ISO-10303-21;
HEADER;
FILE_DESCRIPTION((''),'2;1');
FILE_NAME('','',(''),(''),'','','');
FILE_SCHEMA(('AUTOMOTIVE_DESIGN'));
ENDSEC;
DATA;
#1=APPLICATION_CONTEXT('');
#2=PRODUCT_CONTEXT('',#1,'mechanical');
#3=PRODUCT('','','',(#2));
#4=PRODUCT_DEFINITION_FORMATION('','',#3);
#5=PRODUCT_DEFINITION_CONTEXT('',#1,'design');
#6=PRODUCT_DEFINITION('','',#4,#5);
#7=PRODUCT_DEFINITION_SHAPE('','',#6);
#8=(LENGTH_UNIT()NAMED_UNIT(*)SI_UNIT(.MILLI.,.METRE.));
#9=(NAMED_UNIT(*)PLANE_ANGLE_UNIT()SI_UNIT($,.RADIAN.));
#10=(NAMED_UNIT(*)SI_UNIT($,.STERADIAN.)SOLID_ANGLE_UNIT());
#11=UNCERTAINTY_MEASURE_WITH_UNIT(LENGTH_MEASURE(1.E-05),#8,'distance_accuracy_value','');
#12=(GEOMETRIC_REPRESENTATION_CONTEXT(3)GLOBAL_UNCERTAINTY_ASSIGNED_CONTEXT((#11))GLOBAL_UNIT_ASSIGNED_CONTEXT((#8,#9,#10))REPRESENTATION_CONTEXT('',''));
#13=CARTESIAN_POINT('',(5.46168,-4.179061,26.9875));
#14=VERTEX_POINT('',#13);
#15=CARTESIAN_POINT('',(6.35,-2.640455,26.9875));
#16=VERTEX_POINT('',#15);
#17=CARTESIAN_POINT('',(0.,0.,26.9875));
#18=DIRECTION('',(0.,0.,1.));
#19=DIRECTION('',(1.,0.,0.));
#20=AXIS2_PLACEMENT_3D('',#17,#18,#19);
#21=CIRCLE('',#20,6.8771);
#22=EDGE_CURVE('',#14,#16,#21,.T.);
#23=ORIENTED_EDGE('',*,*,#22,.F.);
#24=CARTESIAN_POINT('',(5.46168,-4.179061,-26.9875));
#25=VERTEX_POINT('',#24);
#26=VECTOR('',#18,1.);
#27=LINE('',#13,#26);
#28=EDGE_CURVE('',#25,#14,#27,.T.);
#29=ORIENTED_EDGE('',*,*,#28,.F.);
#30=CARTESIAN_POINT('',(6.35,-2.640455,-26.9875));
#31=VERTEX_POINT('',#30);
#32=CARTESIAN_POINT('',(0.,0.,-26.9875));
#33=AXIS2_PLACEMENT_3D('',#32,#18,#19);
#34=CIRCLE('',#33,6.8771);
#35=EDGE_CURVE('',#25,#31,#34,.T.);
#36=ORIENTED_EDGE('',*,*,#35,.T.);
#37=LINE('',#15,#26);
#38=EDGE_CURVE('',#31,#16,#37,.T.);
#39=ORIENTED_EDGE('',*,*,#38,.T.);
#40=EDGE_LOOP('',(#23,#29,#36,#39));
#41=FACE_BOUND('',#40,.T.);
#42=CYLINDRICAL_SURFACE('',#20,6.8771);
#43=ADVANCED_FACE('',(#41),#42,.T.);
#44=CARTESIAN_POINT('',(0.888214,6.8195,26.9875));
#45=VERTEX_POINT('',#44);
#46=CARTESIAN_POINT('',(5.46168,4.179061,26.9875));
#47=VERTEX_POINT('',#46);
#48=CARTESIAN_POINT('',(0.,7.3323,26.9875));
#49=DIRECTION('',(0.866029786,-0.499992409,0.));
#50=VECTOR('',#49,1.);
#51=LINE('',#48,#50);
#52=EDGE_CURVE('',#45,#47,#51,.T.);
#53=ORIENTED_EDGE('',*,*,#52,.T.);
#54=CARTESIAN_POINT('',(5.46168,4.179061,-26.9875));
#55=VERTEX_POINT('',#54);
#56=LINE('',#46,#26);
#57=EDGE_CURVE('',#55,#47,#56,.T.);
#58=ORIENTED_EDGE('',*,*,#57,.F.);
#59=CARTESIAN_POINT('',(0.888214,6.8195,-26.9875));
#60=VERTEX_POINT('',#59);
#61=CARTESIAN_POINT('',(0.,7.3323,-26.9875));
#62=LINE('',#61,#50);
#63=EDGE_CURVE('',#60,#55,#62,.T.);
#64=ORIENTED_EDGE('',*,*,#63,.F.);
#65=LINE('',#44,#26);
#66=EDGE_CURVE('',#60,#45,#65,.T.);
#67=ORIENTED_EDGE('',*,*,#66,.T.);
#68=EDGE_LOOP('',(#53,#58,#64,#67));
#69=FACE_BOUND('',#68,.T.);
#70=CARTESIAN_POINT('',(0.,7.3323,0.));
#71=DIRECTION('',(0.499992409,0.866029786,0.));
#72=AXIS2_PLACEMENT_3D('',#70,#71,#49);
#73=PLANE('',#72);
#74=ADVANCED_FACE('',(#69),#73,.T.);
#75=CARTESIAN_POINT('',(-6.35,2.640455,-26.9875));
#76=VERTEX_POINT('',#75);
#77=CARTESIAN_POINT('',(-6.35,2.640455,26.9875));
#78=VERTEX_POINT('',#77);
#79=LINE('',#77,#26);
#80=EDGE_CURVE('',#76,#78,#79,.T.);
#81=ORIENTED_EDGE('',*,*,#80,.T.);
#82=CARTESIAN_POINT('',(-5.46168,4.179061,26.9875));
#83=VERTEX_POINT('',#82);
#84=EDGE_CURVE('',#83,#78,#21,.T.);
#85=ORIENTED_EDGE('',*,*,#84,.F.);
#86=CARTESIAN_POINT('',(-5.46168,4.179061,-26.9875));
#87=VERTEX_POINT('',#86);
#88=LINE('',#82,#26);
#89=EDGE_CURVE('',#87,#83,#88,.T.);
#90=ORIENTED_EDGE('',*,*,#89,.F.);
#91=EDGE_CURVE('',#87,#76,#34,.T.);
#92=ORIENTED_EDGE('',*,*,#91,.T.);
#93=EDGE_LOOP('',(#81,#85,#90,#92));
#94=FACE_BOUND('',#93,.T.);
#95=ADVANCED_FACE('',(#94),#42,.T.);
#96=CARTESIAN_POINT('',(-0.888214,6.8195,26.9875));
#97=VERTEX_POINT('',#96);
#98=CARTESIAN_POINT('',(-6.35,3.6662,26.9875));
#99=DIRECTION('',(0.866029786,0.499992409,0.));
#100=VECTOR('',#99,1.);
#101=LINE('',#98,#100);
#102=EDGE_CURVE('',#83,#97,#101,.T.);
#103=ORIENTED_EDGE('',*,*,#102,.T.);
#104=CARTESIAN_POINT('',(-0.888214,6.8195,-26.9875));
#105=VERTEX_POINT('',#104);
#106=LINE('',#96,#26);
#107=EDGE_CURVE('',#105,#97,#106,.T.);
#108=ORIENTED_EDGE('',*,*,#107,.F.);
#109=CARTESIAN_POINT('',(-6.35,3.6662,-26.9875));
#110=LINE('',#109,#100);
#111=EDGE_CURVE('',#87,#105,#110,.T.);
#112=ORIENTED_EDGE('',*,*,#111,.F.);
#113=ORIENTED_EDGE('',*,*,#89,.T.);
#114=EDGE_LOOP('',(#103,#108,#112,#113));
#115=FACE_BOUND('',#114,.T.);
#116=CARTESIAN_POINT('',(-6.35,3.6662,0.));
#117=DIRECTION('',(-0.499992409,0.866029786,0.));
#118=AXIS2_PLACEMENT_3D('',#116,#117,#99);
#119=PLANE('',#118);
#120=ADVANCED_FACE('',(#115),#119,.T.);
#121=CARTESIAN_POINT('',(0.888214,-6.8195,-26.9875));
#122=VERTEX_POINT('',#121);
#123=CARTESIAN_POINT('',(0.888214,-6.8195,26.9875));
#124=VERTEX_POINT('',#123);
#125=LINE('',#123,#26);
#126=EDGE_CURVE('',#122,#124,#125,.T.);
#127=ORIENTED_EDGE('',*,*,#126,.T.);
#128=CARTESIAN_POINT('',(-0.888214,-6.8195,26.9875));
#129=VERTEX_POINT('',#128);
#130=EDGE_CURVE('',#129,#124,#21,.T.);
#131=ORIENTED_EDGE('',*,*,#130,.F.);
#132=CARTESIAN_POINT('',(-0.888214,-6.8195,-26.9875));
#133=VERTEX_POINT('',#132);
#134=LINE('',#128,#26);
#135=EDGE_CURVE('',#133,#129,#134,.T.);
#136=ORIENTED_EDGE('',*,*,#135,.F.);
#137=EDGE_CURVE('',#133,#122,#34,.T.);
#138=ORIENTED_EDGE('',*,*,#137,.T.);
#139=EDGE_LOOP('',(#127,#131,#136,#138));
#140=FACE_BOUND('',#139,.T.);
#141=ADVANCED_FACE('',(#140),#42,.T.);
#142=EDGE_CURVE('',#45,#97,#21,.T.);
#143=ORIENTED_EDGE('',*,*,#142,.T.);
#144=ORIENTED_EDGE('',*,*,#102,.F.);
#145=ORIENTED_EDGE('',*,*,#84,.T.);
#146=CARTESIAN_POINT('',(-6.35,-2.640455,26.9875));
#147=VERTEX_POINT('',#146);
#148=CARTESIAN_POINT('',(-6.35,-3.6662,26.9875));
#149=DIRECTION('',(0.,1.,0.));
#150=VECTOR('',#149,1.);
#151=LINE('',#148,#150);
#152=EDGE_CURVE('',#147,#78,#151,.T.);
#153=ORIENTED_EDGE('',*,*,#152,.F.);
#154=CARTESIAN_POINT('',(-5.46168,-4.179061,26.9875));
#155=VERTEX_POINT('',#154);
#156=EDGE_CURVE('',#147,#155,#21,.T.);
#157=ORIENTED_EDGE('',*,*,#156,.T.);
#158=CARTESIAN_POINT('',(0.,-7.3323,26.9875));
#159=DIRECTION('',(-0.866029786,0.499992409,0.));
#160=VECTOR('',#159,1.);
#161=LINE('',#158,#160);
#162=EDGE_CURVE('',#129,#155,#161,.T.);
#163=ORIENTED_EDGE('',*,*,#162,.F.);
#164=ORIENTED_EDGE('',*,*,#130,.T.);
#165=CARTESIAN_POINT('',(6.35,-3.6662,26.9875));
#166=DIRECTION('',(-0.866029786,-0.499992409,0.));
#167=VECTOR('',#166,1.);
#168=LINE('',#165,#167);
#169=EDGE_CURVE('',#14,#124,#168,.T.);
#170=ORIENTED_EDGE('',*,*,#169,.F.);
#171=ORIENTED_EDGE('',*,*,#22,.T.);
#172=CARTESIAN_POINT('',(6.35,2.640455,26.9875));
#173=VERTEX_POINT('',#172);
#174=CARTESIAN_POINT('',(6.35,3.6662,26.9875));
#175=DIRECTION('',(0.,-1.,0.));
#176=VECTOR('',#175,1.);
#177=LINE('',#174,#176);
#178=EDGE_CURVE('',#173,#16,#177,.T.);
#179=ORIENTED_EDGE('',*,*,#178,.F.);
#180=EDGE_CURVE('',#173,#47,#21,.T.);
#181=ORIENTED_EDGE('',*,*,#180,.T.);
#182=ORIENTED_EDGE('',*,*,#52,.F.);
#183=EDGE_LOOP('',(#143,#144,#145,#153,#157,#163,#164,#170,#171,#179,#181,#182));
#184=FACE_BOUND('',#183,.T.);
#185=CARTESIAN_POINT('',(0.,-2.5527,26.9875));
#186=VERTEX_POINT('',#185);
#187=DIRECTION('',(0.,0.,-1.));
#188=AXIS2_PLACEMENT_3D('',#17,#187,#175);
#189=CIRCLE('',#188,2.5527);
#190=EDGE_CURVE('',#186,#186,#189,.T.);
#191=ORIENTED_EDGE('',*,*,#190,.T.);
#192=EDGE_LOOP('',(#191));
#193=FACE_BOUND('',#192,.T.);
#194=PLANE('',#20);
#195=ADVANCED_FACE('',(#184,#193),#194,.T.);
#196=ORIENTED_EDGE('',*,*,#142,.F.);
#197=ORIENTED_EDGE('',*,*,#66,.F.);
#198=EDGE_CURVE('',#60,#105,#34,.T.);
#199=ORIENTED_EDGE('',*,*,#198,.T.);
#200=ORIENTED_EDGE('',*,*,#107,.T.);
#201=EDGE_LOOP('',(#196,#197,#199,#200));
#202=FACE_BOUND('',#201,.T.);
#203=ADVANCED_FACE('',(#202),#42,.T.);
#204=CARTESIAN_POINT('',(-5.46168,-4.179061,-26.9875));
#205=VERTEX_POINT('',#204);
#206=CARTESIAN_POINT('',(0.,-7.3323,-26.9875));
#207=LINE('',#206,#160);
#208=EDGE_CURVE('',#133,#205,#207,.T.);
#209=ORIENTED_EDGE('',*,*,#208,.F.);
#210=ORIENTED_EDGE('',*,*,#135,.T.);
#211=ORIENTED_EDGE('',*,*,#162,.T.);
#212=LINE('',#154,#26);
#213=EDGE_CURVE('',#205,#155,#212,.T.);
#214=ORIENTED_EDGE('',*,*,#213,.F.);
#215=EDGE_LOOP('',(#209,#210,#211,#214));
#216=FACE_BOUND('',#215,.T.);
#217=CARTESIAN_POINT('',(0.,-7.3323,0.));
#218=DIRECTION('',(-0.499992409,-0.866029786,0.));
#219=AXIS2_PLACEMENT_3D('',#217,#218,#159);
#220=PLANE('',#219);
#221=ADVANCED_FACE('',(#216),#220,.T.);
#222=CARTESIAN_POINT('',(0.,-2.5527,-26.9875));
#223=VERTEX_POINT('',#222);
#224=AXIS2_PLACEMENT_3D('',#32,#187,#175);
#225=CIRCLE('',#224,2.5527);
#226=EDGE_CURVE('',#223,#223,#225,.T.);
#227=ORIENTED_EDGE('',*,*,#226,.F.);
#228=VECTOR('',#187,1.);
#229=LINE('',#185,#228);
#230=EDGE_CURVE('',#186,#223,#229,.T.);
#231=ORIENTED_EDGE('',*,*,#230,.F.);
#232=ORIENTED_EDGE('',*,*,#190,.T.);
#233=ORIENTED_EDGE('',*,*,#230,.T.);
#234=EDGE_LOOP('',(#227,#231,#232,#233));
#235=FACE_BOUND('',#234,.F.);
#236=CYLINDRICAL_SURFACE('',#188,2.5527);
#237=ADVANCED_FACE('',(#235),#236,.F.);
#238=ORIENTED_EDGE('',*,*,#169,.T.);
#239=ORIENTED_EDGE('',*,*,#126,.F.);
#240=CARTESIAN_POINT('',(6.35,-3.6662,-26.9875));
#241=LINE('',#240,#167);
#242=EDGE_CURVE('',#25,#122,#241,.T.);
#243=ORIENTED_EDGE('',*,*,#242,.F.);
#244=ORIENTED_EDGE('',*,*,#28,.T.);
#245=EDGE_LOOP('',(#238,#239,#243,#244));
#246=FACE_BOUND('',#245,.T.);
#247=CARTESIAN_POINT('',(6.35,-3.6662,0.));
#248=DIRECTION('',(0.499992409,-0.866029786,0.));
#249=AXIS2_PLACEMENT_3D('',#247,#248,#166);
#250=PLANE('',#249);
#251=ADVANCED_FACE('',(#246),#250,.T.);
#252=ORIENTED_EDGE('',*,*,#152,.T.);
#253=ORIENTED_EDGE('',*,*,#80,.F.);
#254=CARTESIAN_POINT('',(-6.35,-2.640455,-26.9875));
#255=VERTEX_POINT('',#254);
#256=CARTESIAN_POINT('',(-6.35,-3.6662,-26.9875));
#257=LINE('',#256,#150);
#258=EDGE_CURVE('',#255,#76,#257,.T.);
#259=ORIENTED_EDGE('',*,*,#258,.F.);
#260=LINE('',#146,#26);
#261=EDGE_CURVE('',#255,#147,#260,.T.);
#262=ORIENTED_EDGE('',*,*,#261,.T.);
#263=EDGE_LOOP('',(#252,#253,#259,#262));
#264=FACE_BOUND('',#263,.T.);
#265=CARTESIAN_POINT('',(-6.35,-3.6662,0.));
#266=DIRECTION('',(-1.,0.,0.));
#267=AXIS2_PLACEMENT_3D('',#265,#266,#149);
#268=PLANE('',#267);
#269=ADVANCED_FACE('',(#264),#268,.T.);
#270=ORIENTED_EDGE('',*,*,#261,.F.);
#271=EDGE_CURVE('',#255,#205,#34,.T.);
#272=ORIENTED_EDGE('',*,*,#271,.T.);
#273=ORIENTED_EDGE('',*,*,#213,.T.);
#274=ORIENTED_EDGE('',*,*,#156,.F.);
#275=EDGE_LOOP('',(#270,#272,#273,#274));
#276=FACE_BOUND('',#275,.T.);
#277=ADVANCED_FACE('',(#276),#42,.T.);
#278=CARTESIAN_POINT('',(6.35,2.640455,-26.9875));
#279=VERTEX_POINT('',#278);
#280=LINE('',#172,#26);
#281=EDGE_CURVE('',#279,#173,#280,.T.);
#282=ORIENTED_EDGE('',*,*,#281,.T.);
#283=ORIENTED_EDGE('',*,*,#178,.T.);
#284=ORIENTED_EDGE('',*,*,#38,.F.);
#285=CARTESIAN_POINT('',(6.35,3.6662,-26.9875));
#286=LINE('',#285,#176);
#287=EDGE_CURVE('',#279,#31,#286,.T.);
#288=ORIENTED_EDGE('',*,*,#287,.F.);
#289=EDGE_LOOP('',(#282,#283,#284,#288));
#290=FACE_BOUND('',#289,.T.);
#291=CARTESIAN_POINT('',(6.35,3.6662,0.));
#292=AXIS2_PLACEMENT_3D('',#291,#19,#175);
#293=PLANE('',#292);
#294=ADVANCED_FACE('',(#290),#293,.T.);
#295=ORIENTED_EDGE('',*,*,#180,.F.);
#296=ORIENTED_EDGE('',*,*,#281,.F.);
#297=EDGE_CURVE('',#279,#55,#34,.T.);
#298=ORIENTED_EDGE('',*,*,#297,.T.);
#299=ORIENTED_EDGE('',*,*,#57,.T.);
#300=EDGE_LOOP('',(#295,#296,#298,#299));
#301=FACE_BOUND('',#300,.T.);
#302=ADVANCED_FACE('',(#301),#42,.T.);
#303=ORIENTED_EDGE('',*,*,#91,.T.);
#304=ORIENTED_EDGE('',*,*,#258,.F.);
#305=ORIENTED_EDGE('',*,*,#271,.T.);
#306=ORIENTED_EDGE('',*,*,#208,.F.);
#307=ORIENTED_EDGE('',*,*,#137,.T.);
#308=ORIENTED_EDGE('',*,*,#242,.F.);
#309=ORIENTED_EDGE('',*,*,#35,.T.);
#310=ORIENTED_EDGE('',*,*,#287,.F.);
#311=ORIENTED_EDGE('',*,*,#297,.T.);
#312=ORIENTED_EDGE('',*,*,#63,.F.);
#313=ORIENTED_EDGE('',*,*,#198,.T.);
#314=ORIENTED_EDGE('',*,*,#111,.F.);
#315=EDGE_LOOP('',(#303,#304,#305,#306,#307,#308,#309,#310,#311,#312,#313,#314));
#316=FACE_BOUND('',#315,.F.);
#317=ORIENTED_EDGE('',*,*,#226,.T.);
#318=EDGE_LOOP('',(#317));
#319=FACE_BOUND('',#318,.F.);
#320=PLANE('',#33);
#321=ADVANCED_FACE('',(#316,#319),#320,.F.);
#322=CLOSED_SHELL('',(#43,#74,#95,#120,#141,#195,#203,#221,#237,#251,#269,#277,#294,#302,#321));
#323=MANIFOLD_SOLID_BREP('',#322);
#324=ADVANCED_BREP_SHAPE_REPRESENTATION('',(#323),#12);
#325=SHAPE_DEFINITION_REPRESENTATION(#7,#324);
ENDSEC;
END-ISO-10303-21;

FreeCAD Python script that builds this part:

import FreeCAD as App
import Part
import Sketcher

V = App.Vector
Q = App.Units.Quantity

doc = App.newDocument("Part")
body = doc.addObject("PartDesign::Body", "Body")

# Sketch on XY plane
sketch1 = doc.addObject("Sketcher::SketchObject", "Sketch")
body.addObject(sketch1)
sketch1.AttachmentSupport = (doc.XY_Plane, [""])
sketch1.MapMode = "FlatFace"
sketch1.addGeometry(Part.LineSegment(V(-6, 4, 0), V(-6, -4, 0)), False)
sketch1.addGeometry(Part.LineSegment(V(-6, -4, 0), V(0, -7, 0)), False)
sketch1.addGeometry(Part.LineSegment(V(0, -7, 0), V(6, -4, 0)), False)
sketch1.addGeometry(Part.LineSegment(V(6, -4, 0), V(6, 4, 0)), False)
sketch1.addGeometry(Part.LineSegment(V(6, 4, 0), V(0, 7, 0)), False)
sketch1.addGeometry(Part.LineSegment(V(0, 7, 0), V(-6, 4, 0)), False)
sketch1.addConstraint(Sketcher.Constraint("Coincident", 0, 2, 1, 1))
sketch1.addConstraint(Sketcher.Constraint("Coincident", 1, 2, 2, 1))
sketch1.addConstraint(Sketcher.Constraint("Coincident", 2, 2, 3, 1))
sketch1.addConstraint(Sketcher.Constraint("Coincident", 3, 2, 4, 1))
sketch1.addConstraint(Sketcher.Constraint("Coincident", 4, 2, 5, 1))
sketch1.addConstraint(Sketcher.Constraint("Coincident", 5, 2, 0, 1))
sketch1.addConstraint(Sketcher.Constraint("Vertical", 0))
sketch1.addConstraint(Sketcher.Constraint("Vertical", 3))
sketch1.addConstraint(Sketcher.Constraint("Symmetric", 0, 2, 3, 2, -1, 1))
sketch1.addConstraint(Sketcher.Constraint("Symmetric", 1, 2, 4, 2, -1, 1))
sketch1.addConstraint(Sketcher.Constraint("PointOnObject", 1, 2, -2))
sketch1.addConstraint(Sketcher.Constraint("Parallel", 2, 5))
sketch1.addConstraint(Sketcher.Constraint("Horizontal", 0, 2, 2, 2))
sketch1.addConstraint(Sketcher.Constraint("DistanceX", 0, 2, 2, 2, Q("0.5 in")))
sketch1.addConstraint(Sketcher.Constraint("Angle", 1, Q("-29.9995 deg")))
sketch1.addConstraint(Sketcher.Constraint("DistanceY", 1, 2, 3, 2, Q("0.433 in")))
pad1 = doc.addObject("PartDesign::Pad", "Pad")
body.addObject(pad1)
pad1.Profile = sketch1
pad1.Length = Q("2.125 in")
pad1.Midplane = True

# Sketch on XY plane
sketch2 = doc.addObject("Sketcher::SketchObject", "Sketch001")
body.addObject(sketch2)
sketch2.AttachmentSupport = (doc.XY_Plane, [""])
sketch2.MapMode = "FlatFace"
sketch2.AttachmentOffset = App.Placement(V(0, 0, 1.0625 * 25.4), App.Rotation())
sketch2.addGeometry(Part.Circle(V(0, 0, 0), V(0, 0, 1), 2.6), False)
sketch2.addConstraint(Sketcher.Constraint("Coincident", 0, 3, -1, 1))
sketch2.addConstraint(Sketcher.Constraint("Diameter", 0, Q("0.201 in")))
doc.recompute()
hole = doc.addObject("PartDesign::Hole", "Hole")
body.addObject(hole)
hole.Profile = sketch2
hole.ThreadType = "None"
hole.Diameter = Q("0.201 in")
hole.DepthType = "ThroughAll"

# Sketch on XY plane
sketch3 = doc.addObject("Sketcher::SketchObject", "Sketch002")
body.addObject(sketch3)
sketch3.AttachmentSupport = (doc.XY_Plane, [""])
sketch3.MapMode = "FlatFace"
sketch3.AttachmentOffset = App.Placement(V(0, 0, 1.0625 * 25.4), App.Rotation())
sketch3.addGeometry(Part.Circle(V(0, 0, 0), V(0, 0, 1), 9), False)
sketch3.addGeometry(Part.Circle(V(0, 0, 0), V(0, 0, 1), 7), False)
sketch3.addConstraint(Sketcher.Constraint("Coincident", 0, 3, -1, 1))
sketch3.addConstraint(Sketcher.Constraint("Coincident", 1, 3, -1, 1))
sketch3.addConstraint(Sketcher.Constraint("Diameter", 0, Q("0.7 in")))
sketch3.addConstraint(Sketcher.Constraint("Diameter", 1, Q("0.5415 in")))
pocket1 = doc.addObject("PartDesign::Pocket", "Pocket")
body.addObject(pocket1)
pocket1.Profile = sketch3
pocket1.Type = "ThroughAll"

doc.recompute()
